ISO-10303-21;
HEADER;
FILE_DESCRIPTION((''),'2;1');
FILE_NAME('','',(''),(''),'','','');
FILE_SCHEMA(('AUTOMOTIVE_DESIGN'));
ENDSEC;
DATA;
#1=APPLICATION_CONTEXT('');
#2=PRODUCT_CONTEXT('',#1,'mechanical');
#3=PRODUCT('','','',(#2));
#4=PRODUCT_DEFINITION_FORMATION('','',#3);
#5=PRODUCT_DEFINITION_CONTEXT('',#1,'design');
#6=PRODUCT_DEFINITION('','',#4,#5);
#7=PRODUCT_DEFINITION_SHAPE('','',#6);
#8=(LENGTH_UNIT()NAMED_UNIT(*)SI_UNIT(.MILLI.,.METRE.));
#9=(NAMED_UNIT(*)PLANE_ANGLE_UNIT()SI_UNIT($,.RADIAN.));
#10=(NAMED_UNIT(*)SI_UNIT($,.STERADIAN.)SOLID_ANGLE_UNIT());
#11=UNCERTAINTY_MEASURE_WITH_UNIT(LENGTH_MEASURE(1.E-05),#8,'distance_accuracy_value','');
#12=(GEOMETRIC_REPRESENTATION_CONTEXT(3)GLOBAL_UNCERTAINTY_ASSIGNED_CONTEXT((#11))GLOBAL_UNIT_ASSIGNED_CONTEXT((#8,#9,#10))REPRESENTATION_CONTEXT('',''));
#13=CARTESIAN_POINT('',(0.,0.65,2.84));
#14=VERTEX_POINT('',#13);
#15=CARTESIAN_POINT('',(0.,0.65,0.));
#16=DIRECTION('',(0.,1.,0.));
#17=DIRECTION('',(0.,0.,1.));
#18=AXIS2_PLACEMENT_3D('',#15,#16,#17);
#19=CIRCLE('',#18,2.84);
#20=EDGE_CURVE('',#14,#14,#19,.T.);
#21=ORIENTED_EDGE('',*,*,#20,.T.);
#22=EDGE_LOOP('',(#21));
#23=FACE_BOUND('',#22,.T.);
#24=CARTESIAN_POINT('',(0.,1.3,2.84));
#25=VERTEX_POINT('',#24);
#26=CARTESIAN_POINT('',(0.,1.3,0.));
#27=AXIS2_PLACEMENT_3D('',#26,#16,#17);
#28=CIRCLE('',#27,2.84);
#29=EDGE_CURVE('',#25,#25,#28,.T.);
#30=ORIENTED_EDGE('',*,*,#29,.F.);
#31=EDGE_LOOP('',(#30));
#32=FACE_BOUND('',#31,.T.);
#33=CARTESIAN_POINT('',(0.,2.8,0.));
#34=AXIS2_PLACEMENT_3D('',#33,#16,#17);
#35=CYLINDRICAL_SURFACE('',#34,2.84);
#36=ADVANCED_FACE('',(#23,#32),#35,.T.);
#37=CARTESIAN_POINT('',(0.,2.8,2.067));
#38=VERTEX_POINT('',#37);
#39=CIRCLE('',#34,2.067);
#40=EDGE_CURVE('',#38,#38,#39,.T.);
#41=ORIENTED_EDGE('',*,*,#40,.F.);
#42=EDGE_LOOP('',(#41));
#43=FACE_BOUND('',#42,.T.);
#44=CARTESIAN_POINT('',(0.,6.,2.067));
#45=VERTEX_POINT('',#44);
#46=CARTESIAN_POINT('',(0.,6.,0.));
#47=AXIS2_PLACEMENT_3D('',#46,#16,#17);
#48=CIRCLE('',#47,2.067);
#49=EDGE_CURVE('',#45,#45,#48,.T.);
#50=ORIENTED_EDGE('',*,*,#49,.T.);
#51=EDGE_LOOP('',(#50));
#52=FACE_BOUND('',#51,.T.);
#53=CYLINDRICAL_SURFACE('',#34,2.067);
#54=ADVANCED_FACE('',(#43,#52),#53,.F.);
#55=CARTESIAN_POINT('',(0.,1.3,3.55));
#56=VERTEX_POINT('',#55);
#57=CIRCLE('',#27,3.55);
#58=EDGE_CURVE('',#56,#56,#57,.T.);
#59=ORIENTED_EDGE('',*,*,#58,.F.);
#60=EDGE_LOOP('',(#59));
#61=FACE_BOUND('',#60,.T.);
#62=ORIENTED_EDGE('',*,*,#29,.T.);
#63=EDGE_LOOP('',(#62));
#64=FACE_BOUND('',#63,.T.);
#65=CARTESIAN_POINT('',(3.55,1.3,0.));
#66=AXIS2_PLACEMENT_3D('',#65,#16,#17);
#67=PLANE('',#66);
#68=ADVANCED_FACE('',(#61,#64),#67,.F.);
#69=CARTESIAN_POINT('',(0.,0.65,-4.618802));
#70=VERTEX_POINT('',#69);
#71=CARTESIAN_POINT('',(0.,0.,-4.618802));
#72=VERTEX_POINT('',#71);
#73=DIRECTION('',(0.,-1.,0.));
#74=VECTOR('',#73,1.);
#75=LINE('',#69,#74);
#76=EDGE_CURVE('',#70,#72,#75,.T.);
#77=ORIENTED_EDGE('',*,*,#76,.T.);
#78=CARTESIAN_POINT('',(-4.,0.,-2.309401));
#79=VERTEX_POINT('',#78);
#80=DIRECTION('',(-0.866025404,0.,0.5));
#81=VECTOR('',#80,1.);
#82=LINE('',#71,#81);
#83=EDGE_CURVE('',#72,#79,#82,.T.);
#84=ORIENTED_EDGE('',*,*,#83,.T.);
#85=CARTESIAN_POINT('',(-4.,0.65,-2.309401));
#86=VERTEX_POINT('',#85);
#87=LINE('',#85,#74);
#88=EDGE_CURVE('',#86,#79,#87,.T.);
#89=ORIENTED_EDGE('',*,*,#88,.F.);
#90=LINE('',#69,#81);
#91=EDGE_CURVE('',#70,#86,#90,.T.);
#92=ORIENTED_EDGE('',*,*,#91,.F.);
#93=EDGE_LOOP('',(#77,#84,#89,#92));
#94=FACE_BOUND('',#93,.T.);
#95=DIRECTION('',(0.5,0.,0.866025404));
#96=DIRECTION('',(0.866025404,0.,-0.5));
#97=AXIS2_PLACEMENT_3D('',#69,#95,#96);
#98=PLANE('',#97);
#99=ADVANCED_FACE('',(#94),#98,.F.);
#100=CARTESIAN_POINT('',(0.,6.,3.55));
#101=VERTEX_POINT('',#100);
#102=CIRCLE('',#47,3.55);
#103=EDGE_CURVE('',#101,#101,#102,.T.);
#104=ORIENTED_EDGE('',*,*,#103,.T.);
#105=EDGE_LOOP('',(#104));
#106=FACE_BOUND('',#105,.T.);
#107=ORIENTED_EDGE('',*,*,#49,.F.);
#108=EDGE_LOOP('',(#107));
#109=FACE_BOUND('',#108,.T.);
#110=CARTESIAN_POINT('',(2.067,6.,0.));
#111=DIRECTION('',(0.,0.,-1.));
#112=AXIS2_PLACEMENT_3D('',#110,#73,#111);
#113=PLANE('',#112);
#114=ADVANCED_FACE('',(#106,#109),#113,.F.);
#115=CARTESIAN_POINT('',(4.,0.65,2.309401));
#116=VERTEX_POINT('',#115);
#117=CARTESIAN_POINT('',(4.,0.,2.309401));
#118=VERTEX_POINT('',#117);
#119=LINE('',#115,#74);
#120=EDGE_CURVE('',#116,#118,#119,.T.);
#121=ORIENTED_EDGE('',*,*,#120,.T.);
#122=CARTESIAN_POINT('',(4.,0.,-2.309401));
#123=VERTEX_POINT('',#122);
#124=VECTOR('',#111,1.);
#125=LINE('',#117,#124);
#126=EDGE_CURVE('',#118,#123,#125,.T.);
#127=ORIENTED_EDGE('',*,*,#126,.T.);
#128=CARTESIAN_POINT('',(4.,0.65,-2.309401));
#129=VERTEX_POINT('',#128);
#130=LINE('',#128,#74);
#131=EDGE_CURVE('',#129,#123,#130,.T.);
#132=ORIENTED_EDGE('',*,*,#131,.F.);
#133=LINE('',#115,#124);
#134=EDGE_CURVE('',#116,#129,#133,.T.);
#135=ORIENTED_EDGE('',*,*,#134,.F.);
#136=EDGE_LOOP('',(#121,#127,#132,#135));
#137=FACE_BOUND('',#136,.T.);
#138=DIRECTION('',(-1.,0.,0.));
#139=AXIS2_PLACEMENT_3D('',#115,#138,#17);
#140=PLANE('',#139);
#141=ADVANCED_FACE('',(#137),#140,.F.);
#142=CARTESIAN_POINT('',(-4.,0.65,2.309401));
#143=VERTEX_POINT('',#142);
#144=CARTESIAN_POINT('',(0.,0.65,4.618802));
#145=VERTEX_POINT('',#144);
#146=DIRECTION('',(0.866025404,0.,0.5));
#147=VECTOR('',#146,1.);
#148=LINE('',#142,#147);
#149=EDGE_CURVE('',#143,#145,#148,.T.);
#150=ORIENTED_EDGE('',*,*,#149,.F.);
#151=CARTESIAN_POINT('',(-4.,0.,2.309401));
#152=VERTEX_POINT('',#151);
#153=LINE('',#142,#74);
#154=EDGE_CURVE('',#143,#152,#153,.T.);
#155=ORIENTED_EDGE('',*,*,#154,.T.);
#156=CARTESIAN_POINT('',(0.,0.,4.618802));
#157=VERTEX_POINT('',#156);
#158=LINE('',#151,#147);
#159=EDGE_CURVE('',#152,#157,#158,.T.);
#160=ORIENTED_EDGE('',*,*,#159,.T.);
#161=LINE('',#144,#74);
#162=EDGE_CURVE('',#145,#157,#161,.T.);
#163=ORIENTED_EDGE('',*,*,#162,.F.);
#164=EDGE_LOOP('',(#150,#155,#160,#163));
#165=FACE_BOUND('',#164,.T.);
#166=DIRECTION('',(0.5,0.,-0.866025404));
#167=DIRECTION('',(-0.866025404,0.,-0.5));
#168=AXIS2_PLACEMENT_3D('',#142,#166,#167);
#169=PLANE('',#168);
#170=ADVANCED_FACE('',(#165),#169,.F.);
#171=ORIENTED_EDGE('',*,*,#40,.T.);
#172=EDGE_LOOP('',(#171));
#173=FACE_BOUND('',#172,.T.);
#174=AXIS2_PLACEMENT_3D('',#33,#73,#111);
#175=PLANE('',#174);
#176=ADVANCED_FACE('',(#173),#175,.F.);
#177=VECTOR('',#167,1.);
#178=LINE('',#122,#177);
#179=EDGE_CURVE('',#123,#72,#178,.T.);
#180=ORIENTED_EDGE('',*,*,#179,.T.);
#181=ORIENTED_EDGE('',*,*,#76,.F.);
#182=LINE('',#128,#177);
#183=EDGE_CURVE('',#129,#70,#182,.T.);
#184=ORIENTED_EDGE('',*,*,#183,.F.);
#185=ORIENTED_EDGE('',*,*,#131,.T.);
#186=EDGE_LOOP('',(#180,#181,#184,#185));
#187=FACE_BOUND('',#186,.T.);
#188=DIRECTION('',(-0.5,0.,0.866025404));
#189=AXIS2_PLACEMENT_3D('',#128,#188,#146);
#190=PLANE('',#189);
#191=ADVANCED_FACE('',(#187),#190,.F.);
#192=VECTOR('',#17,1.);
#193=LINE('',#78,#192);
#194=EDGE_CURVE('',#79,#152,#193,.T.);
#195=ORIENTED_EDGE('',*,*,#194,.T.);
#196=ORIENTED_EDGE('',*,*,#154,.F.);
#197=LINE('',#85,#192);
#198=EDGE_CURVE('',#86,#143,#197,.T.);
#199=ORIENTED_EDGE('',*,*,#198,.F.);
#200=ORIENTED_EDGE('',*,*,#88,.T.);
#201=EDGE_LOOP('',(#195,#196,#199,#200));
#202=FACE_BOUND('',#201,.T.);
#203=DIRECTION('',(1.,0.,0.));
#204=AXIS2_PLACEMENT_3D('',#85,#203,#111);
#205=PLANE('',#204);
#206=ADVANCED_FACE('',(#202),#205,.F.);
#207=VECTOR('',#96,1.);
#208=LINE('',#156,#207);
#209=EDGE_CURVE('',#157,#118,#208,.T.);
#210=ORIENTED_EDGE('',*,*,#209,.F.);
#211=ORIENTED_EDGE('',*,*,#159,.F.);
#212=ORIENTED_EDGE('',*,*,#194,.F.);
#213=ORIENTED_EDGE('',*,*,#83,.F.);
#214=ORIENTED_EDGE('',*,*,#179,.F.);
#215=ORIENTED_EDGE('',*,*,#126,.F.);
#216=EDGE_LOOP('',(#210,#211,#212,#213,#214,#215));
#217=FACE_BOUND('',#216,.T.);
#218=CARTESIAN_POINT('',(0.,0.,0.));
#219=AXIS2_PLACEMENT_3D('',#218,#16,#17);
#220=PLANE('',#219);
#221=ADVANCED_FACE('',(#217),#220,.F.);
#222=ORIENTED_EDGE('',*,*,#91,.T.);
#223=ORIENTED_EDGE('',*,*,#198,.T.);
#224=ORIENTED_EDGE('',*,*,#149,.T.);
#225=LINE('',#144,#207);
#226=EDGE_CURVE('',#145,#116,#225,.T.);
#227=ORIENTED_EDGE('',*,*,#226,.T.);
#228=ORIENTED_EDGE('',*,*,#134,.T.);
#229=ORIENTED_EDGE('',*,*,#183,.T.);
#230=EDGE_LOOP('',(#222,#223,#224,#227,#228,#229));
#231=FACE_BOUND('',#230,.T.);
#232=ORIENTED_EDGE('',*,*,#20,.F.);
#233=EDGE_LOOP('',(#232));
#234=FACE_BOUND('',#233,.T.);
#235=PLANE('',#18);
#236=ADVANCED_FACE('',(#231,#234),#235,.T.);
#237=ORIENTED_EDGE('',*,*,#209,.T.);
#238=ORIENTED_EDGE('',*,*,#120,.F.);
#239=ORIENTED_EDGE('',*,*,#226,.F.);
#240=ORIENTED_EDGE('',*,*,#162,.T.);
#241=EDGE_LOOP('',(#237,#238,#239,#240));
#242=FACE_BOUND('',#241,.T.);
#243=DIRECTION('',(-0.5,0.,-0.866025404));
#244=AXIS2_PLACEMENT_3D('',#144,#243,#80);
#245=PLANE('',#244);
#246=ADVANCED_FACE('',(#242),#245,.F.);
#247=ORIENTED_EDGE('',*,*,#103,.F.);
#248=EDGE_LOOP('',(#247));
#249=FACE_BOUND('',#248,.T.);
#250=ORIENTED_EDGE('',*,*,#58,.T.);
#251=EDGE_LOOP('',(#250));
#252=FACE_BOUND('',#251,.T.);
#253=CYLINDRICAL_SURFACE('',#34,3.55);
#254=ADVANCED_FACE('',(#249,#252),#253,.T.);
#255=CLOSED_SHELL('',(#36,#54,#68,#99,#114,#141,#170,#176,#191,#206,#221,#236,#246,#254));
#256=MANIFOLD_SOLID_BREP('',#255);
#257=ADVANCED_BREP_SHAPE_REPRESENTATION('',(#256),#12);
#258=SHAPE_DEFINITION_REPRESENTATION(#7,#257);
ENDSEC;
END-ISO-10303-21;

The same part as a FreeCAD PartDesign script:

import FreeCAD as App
import Part
import Sketcher
Q = App.Units.Quantity


def add_polygon(sketch, points):
    """Adds a closed chain of lines whose ends are joined by coincident constraints."""
    first, n = sketch.GeometryCount, len(points)
    for a, b in zip(points, points[1:] + points[:1]):
        sketch.addGeometry(Part.LineSegment(App.Vector(*a, 0), App.Vector(*b, 0)), False)
    for i in range(n):
        sketch.addConstraint(Sketcher.Constraint("Coincident", first + i, 2, first + (i + 1) % n, 1))

doc = App.newDocument("Part")
params = doc.addObject("Spreadsheet::Sheet", "Params")
for row, (alias, value) in enumerate([
    ("pad1_length", "0.65 mm"),
    ("sketch2_height", "4.7 mm"),
    ("sketch2_height2", "3.2 mm"),
    ("sketch2_width", "2.84 mm"),
    ("sketch2_width2", "0.71 mm"),
    ("sketch2_height3", "2.15 mm"),
    ("revolution_angle", "360 deg"),
], start=1):
    params.set(f"A{row}", alias)
    params.set(f"B{row}", "=" + value)
    params.setAlias(f"B{row}", alias)

body = doc.addObject("PartDesign::Body", "Body")

sketch1 = body.newObject("Sketcher::SketchObject", "Sketch")
sketch1.AttachmentSupport = (doc.getObject("XZ_Plane"), [""])
sketch1.MapMode = "FlatFace"
add_polygon(sketch1, [(0, 4.618802), (4, 2.309401), (4, -2.309401), (0, -4.618802), (-4, -2.309401), (-4, 2.309401)])
sketch1.addConstraint([
    Sketcher.Constraint("Vertical", 1),
    Sketcher.Constraint("Vertical", 4),
    Sketcher.Constraint("Symmetric", 0, 2, 3, 2, -1, 1),
    Sketcher.Constraint("Symmetric", 2, 2, 5, 2, -1, 1),
    Sketcher.Constraint("PointOnObject", 2, 2, -2),
    Sketcher.Constraint("Parallel", 2, 5),
    Sketcher.Constraint("Horizontal", 1, 2, 3, 2),
    Sketcher.Constraint("Angle", 0, Q("-30 deg")),
    Sketcher.Constraint("DistanceX", -1, 1, 0, 2, Q("4 mm")),
    Sketcher.Constraint("DistanceY", -1, 1, 0, 2, Q("2.309401 mm")),
])
pad1 = body.newObject("PartDesign::Pad", "Pad")
pad1.Profile = sketch1
pad1.setExpression("Length", "Params.pad1_length")
pad1.Reversed = True

sketch2 = body.newObject("Sketcher::SketchObject", "Sketch001")
sketch2.AttachmentSupport = (doc.getObject("XY_Plane"), [""])
sketch2.MapMode = "FlatFace"
add_polygon(sketch2, [(3.55, 1.3), (3.55, 6), (2.067, 6), (2.067, 2.8), (0, 2.8), (0, 0.65), (2.84, 0.65), (2.84, 1.3)])
sketch2.addConstraint([
    Sketcher.Constraint("Vertical", 0),
    Sketcher.Constraint("Horizontal", 1),
    Sketcher.Constraint("Vertical", 2),
    Sketcher.Constraint("Horizontal", 3),
    Sketcher.Constraint("Vertical", 4),
    Sketcher.Constraint("Horizontal", 5),
    Sketcher.Constraint("Vertical", 6),
    Sketcher.Constraint("Horizontal", 7),
    Sketcher.Constraint("PointOnObject", 3, 2, -2),
    Sketcher.Constraint("DistanceY", 0, 1, 0, 2, Q("4.7 mm")),
    Sketcher.Constraint("DistanceY", 2, 2, 2, 1, Q("3.2 mm")),
    Sketcher.Constraint("DistanceY", -1, 1, 0, 2, Q("6 mm")),
    Sketcher.Constraint("DistanceX", 5, 1, 5, 2, Q("2.84 mm")),
    Sketcher.Constraint("DistanceX", 7, 1, 7, 2, Q("0.71 mm")),
    Sketcher.Constraint("DistanceY", 4, 2, 4, 1, Q("2.15 mm")),
    Sketcher.Constraint("DistanceX", 1, 2, 1, 1, Q("1.483 mm")),
])
sketch2.setExpression("Constraints[17]", "Params.sketch2_height")
sketch2.setExpression("Constraints[18]", "Params.sketch2_height2")
sketch2.setExpression("Constraints[20]", "Params.sketch2_width")
sketch2.setExpression("Constraints[21]", "Params.sketch2_width2")
sketch2.setExpression("Constraints[22]", "Params.sketch2_height3")
revolution = body.newObject("PartDesign::Revolution", "Revolution")
revolution.Profile = sketch2
revolution.ReferenceAxis = (sketch2, ["V_Axis"])
revolution.setExpression("Angle", "Params.revolution_angle")

doc.recompute()
